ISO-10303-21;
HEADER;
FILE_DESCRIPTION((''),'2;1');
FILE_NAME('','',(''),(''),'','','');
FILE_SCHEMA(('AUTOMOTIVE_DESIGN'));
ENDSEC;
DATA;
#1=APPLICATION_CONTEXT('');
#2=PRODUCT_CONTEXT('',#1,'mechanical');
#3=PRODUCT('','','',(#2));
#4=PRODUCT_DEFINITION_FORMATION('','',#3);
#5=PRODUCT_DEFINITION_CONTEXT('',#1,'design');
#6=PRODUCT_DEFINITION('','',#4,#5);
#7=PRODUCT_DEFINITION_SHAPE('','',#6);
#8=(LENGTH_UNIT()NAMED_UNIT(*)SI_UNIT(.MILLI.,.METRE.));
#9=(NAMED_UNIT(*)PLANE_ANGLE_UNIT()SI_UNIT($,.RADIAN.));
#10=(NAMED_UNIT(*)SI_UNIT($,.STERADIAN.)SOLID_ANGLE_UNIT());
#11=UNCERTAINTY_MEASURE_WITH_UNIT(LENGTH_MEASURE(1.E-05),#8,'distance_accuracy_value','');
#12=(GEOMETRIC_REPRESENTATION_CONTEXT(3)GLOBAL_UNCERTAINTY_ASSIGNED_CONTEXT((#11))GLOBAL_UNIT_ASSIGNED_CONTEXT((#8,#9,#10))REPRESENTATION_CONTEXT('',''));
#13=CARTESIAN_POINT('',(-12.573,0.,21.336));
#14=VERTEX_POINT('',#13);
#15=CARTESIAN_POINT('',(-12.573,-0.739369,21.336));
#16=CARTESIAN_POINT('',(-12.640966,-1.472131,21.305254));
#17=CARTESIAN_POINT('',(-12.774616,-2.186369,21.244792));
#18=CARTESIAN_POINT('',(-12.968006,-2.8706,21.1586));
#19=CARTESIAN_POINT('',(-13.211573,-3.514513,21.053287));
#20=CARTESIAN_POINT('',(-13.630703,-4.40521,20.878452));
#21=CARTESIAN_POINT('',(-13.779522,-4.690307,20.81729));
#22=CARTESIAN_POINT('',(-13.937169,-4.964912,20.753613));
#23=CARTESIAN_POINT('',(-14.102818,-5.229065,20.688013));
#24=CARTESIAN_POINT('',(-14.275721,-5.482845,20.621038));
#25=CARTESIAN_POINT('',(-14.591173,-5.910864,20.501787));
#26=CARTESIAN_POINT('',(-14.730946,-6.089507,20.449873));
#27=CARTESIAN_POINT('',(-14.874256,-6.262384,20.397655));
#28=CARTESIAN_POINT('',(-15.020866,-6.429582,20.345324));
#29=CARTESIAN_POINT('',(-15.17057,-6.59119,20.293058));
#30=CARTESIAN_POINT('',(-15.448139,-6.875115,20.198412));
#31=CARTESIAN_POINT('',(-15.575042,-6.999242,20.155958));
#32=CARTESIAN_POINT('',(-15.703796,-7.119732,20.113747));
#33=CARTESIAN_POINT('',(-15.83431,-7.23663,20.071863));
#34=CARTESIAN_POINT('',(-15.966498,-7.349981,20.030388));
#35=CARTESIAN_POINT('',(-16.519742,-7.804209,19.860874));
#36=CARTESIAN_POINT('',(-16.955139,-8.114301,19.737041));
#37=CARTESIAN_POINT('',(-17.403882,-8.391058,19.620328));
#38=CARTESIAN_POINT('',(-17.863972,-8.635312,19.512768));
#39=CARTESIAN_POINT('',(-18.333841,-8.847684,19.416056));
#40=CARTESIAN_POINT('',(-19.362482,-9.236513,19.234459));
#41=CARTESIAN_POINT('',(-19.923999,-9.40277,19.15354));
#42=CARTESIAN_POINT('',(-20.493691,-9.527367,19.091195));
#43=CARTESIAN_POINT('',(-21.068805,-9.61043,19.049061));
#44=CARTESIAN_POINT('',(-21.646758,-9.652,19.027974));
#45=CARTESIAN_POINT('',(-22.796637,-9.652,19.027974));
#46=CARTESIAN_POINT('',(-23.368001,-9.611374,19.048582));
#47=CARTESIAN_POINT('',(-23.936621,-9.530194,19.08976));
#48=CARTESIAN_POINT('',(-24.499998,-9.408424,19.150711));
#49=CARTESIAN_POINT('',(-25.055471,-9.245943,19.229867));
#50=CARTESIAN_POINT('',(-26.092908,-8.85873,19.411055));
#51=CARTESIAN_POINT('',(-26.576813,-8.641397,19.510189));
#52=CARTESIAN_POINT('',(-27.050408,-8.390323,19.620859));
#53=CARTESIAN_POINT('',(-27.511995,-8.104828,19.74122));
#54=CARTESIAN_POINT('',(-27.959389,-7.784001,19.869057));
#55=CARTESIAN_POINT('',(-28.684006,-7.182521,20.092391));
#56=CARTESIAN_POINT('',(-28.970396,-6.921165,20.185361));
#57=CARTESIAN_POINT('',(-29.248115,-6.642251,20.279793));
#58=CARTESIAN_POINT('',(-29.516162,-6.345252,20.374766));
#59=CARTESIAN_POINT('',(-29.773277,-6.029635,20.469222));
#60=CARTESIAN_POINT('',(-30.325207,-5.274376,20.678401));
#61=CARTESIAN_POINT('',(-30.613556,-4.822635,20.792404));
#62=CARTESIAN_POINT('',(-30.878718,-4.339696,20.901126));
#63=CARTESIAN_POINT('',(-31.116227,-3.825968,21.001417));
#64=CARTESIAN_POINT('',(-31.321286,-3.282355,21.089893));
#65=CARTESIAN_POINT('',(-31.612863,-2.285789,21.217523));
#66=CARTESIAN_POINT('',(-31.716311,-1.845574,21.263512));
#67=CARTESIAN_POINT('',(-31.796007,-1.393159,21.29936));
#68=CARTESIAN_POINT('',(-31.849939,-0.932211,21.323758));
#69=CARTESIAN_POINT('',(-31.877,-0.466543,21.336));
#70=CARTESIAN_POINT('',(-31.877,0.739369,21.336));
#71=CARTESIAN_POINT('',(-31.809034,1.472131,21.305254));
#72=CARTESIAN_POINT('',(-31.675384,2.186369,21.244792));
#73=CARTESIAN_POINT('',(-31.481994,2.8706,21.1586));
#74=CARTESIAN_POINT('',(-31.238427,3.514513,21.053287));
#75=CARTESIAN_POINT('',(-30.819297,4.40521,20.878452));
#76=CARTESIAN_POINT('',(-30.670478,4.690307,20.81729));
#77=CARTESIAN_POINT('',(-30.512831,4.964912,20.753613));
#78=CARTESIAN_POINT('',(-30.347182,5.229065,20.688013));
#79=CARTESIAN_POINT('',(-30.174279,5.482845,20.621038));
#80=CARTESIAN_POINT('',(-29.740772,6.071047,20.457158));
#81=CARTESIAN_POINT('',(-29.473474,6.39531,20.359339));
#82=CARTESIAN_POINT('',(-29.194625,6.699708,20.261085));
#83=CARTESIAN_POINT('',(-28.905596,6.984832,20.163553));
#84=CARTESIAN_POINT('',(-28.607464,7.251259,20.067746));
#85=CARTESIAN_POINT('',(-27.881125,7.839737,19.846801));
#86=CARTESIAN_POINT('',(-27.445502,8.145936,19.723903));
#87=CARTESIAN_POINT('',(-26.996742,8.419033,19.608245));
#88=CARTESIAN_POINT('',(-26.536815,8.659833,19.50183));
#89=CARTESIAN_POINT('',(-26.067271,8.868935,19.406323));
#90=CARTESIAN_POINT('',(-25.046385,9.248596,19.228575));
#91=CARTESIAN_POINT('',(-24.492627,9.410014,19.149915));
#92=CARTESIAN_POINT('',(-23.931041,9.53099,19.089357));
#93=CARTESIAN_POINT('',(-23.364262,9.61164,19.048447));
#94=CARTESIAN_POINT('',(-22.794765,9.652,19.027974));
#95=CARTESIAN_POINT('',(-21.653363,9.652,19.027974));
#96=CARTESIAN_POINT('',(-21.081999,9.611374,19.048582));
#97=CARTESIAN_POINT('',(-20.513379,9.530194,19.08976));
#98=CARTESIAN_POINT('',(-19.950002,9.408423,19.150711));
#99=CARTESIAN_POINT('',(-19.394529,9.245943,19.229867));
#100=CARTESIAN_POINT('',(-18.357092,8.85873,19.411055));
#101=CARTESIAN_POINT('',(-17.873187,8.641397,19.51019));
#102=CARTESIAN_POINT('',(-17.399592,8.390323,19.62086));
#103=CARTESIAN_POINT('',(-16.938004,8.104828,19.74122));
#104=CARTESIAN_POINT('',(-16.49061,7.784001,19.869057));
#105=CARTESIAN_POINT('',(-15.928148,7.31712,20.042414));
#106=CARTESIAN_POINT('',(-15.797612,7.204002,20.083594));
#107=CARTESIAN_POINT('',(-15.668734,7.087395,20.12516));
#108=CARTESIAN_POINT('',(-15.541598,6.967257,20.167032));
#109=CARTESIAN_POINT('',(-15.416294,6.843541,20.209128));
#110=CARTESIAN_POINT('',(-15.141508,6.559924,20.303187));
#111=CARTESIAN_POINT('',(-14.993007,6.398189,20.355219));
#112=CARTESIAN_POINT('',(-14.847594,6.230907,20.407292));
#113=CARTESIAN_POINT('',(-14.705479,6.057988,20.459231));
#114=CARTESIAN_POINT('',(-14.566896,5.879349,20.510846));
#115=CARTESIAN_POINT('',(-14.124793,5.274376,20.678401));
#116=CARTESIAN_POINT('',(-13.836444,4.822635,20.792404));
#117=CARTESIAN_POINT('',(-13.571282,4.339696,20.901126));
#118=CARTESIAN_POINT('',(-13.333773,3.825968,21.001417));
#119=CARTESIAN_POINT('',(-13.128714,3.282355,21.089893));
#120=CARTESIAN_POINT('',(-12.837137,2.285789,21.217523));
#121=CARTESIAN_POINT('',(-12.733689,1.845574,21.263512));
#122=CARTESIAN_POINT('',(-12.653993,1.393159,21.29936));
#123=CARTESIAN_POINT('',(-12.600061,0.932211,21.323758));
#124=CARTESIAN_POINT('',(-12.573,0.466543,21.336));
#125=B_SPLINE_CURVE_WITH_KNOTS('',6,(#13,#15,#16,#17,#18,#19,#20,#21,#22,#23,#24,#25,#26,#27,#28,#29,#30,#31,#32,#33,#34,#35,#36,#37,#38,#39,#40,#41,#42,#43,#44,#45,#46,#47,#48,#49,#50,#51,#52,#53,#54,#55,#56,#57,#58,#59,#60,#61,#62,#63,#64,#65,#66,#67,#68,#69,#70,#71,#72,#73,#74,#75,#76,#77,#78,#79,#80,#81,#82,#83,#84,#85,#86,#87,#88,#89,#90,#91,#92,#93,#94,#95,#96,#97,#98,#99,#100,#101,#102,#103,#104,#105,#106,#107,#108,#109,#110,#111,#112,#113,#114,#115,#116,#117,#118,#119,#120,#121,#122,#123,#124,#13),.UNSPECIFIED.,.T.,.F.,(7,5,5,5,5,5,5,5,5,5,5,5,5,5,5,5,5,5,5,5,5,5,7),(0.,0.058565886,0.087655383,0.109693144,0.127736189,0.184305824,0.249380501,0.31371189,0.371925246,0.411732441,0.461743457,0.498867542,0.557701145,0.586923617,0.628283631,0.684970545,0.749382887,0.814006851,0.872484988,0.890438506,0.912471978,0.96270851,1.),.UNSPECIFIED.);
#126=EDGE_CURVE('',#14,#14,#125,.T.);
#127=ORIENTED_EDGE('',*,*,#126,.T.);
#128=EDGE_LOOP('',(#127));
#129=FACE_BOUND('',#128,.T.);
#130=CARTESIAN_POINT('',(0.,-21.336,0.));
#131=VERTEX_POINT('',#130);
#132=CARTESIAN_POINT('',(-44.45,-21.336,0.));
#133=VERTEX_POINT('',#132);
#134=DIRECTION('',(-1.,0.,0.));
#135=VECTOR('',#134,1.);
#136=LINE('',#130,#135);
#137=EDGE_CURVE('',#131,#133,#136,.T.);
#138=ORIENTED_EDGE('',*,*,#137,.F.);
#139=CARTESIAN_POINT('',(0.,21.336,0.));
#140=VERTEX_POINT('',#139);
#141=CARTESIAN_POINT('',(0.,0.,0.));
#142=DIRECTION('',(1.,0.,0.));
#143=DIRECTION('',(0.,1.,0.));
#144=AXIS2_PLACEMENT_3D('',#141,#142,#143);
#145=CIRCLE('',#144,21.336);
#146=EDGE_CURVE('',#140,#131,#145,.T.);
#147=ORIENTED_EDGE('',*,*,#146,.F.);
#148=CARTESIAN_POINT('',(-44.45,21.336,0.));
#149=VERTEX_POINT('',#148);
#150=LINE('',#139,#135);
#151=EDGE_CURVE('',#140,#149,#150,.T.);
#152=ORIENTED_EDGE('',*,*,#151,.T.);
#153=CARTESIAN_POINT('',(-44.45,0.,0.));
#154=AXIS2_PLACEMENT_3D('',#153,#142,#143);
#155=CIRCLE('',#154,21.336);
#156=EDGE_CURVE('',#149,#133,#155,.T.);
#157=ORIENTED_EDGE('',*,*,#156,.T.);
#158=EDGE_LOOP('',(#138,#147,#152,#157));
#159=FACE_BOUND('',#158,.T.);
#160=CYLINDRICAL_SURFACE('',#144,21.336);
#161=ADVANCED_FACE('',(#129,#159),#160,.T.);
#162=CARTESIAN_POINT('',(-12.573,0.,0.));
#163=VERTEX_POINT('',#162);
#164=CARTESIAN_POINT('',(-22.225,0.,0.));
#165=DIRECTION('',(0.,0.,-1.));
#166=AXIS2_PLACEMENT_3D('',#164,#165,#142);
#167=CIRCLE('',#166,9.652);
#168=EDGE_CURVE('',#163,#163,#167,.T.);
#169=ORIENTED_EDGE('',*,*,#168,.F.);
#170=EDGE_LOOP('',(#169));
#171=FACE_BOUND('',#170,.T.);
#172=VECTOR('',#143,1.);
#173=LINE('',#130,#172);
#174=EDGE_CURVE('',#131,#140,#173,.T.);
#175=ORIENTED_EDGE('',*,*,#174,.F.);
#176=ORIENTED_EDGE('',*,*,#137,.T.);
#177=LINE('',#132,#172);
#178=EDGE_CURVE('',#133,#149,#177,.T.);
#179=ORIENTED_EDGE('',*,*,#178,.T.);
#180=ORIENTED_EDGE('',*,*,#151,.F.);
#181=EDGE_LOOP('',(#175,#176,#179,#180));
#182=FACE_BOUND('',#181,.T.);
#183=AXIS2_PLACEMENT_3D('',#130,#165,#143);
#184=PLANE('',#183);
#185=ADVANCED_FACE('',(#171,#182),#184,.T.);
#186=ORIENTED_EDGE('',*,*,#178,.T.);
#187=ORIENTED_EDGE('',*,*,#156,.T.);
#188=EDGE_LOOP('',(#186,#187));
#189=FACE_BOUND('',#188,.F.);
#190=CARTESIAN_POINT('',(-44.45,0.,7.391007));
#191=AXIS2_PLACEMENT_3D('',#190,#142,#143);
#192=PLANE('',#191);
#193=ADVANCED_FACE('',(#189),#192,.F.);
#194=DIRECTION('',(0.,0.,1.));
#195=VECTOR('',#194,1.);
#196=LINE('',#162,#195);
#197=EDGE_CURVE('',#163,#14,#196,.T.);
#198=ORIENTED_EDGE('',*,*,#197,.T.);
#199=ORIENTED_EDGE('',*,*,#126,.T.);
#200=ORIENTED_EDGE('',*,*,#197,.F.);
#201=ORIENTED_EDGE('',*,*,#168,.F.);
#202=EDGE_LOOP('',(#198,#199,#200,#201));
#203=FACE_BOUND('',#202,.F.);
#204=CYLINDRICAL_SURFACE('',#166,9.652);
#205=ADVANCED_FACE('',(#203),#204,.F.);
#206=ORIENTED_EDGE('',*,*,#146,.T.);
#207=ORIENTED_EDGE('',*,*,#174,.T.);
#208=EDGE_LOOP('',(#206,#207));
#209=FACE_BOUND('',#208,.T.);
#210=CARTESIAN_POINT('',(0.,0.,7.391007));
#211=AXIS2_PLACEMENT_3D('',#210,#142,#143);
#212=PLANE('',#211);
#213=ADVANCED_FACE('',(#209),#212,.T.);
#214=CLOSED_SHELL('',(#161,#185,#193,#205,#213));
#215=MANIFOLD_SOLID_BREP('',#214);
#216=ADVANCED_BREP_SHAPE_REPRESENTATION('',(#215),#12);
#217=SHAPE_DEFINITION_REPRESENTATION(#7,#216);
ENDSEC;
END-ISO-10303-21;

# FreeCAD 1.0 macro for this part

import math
import FreeCAD as App
import Part
import Sketcher
from FreeCAD import Vector
Q = App.Units.Quantity

doc = App.newDocument("Part")
params = doc.addObject("Spreadsheet::Sheet", "Params")
for row, (alias, value) in enumerate([
    ("sketch1_radius", "0.84 in"),
    ("pad1_length", "1.75 in"),
    ("sketch2_diameter", "0.76 in"),
], start=1):
    params.set(f"A{row}", alias)
    params.set(f"B{row}", "=" + value)
    params.setAlias(f"B{row}", alias)

body = doc.addObject("PartDesign::Body", "Body")

# Sketch on YZ plane
sketch1 = body.newObject("Sketcher::SketchObject", "Sketch")
sketch1.AttachmentSupport = (doc.getObject("YZ_Plane"), [""])
sketch1.MapMode = "FlatFace"
sketch1.addGeometry(Part.LineSegment(Vector(-21, 0, 0), Vector(21, 0, 0)), False)
sketch1.addGeometry(Part.ArcOfCircle(Part.Circle(Vector(0, 0, 0), Vector(0, 0, 1), 21), math.radians(0), math.radians(180)), False)
sketch1.addConstraint(Sketcher.Constraint("Coincident", 0, 1, 1, 2))
sketch1.addConstraint(Sketcher.Constraint("Coincident", 1, 1, 0, 2))
sketch1.addConstraint(Sketcher.Constraint("Horizontal", 0))
sketch1.addConstraint(Sketcher.Constraint("Coincident", 1, 3, -1, 1))
sketch1.addConstraint(Sketcher.Constraint("PointOnObject", 0, 1, -1))
sketch1.addConstraint(Sketcher.Constraint("Radius", 1, Q("0.84 in")))
sketch1.setExpression("Constraints[5]", "Params.sketch1_radius")
pad1 = body.newObject("PartDesign::Pad", "Pad")
pad1.Profile = sketch1
pad1.setExpression("Length", "Params.pad1_length")
pad1.Reversed = True

# Sketch on XY plane
sketch2 = body.newObject("Sketcher::SketchObject", "Sketch001")
sketch2.AttachmentSupport = (doc.getObject("XY_Plane"), [""])
sketch2.MapMode = "FlatFace"
sketch2.addGeometry(Part.Circle(Vector(-22, 0, 0), Vector(0, 0, 1), 10), False)
sketch2.addConstraint(Sketcher.Constraint("PointOnObject", 0, 3, -1))
sketch2.addConstraint(Sketcher.Constraint("Diameter", 0, Q("0.76 in")))
sketch2.addConstraint(Sketcher.Constraint("DistanceX", 0, 3, -1, 1, Q("0.875 in")))
sketch2.setExpression("Constraints[1]", "Params.sketch2_diameter")
pocket1 = body.newObject("PartDesign::Pocket", "Pocket")
pocket1.Profile = sketch2
pocket1.Type = "ThroughAll"
pocket1.Reversed = True

doc.recompute()
